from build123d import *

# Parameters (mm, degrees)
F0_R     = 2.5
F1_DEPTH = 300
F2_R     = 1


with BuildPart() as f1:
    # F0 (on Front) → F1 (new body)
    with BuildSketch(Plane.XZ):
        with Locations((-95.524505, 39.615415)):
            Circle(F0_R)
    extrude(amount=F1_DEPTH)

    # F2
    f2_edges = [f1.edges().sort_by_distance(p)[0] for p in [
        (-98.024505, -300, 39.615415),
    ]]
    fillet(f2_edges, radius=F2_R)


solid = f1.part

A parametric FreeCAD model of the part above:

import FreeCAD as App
import Part
import Sketcher


def edges_at(feature, points):
    """Names of the edges that pass closest to the given points."""
    edges = feature.Shape.Edges
    near = lambda p: min(range(len(edges)), key=lambda i: edges[i].distToShape(Part.Vertex(*p))[0])
    return sorted({f"Edge{near(p) + 1}" for p in points})

doc = App.newDocument("Part")
params = doc.addObject("Spreadsheet::Sheet", "Params")
for row, (alias, value) in enumerate([
    ("sketch1_diameter", "5 mm"),
    ("pad1_length", "300 mm"),
    ("fillet_radius", "1 mm"),
], start=1):
    params.set(f"A{row}", alias)
    params.set(f"B{row}", "=" + value)
    params.setAlias(f"B{row}", alias)

body = doc.addObject("PartDesign::Body", "Body")

# Sketch on XZ plane
sketch1 = body.newObject("Sketcher::SketchObject", "Sketch")
sketch1.AttachmentSupport = (doc.getObject("XZ_Plane"), [""])
sketch1.MapMode = "FlatFace"
sketch1.addGeometry(Part.Circle(App.Vector(-95.5, 39.6, 0), App.Vector(0, 0, 1), 2.5), False)
sketch1.addConstraint([
    Sketcher.Constraint("Diameter", 0, 5.0),
    Sketcher.Constraint("DistanceX", 0, 3, -1, 1, 95.524505),
    Sketcher.Constraint("DistanceY", -1, 1, 0, 3, 39.615415),
])
sketch1.setExpression("Constraints[0]", "Params.sketch1_diameter")
pad1 = body.newObject("PartDesign::Pad", "Pad")
pad1.Profile = sketch1
pad1.setExpression("Length", "Params.pad1_length")
doc.recompute()

fillet = body.newObject("PartDesign::Fillet", "Fillet")
fillet.Base = (pad1, edges_at(pad1, [(-98.025, -300, 39.615)]))
fillet.setExpression("Radius", "Params.fillet_radius")

doc.recompute()
